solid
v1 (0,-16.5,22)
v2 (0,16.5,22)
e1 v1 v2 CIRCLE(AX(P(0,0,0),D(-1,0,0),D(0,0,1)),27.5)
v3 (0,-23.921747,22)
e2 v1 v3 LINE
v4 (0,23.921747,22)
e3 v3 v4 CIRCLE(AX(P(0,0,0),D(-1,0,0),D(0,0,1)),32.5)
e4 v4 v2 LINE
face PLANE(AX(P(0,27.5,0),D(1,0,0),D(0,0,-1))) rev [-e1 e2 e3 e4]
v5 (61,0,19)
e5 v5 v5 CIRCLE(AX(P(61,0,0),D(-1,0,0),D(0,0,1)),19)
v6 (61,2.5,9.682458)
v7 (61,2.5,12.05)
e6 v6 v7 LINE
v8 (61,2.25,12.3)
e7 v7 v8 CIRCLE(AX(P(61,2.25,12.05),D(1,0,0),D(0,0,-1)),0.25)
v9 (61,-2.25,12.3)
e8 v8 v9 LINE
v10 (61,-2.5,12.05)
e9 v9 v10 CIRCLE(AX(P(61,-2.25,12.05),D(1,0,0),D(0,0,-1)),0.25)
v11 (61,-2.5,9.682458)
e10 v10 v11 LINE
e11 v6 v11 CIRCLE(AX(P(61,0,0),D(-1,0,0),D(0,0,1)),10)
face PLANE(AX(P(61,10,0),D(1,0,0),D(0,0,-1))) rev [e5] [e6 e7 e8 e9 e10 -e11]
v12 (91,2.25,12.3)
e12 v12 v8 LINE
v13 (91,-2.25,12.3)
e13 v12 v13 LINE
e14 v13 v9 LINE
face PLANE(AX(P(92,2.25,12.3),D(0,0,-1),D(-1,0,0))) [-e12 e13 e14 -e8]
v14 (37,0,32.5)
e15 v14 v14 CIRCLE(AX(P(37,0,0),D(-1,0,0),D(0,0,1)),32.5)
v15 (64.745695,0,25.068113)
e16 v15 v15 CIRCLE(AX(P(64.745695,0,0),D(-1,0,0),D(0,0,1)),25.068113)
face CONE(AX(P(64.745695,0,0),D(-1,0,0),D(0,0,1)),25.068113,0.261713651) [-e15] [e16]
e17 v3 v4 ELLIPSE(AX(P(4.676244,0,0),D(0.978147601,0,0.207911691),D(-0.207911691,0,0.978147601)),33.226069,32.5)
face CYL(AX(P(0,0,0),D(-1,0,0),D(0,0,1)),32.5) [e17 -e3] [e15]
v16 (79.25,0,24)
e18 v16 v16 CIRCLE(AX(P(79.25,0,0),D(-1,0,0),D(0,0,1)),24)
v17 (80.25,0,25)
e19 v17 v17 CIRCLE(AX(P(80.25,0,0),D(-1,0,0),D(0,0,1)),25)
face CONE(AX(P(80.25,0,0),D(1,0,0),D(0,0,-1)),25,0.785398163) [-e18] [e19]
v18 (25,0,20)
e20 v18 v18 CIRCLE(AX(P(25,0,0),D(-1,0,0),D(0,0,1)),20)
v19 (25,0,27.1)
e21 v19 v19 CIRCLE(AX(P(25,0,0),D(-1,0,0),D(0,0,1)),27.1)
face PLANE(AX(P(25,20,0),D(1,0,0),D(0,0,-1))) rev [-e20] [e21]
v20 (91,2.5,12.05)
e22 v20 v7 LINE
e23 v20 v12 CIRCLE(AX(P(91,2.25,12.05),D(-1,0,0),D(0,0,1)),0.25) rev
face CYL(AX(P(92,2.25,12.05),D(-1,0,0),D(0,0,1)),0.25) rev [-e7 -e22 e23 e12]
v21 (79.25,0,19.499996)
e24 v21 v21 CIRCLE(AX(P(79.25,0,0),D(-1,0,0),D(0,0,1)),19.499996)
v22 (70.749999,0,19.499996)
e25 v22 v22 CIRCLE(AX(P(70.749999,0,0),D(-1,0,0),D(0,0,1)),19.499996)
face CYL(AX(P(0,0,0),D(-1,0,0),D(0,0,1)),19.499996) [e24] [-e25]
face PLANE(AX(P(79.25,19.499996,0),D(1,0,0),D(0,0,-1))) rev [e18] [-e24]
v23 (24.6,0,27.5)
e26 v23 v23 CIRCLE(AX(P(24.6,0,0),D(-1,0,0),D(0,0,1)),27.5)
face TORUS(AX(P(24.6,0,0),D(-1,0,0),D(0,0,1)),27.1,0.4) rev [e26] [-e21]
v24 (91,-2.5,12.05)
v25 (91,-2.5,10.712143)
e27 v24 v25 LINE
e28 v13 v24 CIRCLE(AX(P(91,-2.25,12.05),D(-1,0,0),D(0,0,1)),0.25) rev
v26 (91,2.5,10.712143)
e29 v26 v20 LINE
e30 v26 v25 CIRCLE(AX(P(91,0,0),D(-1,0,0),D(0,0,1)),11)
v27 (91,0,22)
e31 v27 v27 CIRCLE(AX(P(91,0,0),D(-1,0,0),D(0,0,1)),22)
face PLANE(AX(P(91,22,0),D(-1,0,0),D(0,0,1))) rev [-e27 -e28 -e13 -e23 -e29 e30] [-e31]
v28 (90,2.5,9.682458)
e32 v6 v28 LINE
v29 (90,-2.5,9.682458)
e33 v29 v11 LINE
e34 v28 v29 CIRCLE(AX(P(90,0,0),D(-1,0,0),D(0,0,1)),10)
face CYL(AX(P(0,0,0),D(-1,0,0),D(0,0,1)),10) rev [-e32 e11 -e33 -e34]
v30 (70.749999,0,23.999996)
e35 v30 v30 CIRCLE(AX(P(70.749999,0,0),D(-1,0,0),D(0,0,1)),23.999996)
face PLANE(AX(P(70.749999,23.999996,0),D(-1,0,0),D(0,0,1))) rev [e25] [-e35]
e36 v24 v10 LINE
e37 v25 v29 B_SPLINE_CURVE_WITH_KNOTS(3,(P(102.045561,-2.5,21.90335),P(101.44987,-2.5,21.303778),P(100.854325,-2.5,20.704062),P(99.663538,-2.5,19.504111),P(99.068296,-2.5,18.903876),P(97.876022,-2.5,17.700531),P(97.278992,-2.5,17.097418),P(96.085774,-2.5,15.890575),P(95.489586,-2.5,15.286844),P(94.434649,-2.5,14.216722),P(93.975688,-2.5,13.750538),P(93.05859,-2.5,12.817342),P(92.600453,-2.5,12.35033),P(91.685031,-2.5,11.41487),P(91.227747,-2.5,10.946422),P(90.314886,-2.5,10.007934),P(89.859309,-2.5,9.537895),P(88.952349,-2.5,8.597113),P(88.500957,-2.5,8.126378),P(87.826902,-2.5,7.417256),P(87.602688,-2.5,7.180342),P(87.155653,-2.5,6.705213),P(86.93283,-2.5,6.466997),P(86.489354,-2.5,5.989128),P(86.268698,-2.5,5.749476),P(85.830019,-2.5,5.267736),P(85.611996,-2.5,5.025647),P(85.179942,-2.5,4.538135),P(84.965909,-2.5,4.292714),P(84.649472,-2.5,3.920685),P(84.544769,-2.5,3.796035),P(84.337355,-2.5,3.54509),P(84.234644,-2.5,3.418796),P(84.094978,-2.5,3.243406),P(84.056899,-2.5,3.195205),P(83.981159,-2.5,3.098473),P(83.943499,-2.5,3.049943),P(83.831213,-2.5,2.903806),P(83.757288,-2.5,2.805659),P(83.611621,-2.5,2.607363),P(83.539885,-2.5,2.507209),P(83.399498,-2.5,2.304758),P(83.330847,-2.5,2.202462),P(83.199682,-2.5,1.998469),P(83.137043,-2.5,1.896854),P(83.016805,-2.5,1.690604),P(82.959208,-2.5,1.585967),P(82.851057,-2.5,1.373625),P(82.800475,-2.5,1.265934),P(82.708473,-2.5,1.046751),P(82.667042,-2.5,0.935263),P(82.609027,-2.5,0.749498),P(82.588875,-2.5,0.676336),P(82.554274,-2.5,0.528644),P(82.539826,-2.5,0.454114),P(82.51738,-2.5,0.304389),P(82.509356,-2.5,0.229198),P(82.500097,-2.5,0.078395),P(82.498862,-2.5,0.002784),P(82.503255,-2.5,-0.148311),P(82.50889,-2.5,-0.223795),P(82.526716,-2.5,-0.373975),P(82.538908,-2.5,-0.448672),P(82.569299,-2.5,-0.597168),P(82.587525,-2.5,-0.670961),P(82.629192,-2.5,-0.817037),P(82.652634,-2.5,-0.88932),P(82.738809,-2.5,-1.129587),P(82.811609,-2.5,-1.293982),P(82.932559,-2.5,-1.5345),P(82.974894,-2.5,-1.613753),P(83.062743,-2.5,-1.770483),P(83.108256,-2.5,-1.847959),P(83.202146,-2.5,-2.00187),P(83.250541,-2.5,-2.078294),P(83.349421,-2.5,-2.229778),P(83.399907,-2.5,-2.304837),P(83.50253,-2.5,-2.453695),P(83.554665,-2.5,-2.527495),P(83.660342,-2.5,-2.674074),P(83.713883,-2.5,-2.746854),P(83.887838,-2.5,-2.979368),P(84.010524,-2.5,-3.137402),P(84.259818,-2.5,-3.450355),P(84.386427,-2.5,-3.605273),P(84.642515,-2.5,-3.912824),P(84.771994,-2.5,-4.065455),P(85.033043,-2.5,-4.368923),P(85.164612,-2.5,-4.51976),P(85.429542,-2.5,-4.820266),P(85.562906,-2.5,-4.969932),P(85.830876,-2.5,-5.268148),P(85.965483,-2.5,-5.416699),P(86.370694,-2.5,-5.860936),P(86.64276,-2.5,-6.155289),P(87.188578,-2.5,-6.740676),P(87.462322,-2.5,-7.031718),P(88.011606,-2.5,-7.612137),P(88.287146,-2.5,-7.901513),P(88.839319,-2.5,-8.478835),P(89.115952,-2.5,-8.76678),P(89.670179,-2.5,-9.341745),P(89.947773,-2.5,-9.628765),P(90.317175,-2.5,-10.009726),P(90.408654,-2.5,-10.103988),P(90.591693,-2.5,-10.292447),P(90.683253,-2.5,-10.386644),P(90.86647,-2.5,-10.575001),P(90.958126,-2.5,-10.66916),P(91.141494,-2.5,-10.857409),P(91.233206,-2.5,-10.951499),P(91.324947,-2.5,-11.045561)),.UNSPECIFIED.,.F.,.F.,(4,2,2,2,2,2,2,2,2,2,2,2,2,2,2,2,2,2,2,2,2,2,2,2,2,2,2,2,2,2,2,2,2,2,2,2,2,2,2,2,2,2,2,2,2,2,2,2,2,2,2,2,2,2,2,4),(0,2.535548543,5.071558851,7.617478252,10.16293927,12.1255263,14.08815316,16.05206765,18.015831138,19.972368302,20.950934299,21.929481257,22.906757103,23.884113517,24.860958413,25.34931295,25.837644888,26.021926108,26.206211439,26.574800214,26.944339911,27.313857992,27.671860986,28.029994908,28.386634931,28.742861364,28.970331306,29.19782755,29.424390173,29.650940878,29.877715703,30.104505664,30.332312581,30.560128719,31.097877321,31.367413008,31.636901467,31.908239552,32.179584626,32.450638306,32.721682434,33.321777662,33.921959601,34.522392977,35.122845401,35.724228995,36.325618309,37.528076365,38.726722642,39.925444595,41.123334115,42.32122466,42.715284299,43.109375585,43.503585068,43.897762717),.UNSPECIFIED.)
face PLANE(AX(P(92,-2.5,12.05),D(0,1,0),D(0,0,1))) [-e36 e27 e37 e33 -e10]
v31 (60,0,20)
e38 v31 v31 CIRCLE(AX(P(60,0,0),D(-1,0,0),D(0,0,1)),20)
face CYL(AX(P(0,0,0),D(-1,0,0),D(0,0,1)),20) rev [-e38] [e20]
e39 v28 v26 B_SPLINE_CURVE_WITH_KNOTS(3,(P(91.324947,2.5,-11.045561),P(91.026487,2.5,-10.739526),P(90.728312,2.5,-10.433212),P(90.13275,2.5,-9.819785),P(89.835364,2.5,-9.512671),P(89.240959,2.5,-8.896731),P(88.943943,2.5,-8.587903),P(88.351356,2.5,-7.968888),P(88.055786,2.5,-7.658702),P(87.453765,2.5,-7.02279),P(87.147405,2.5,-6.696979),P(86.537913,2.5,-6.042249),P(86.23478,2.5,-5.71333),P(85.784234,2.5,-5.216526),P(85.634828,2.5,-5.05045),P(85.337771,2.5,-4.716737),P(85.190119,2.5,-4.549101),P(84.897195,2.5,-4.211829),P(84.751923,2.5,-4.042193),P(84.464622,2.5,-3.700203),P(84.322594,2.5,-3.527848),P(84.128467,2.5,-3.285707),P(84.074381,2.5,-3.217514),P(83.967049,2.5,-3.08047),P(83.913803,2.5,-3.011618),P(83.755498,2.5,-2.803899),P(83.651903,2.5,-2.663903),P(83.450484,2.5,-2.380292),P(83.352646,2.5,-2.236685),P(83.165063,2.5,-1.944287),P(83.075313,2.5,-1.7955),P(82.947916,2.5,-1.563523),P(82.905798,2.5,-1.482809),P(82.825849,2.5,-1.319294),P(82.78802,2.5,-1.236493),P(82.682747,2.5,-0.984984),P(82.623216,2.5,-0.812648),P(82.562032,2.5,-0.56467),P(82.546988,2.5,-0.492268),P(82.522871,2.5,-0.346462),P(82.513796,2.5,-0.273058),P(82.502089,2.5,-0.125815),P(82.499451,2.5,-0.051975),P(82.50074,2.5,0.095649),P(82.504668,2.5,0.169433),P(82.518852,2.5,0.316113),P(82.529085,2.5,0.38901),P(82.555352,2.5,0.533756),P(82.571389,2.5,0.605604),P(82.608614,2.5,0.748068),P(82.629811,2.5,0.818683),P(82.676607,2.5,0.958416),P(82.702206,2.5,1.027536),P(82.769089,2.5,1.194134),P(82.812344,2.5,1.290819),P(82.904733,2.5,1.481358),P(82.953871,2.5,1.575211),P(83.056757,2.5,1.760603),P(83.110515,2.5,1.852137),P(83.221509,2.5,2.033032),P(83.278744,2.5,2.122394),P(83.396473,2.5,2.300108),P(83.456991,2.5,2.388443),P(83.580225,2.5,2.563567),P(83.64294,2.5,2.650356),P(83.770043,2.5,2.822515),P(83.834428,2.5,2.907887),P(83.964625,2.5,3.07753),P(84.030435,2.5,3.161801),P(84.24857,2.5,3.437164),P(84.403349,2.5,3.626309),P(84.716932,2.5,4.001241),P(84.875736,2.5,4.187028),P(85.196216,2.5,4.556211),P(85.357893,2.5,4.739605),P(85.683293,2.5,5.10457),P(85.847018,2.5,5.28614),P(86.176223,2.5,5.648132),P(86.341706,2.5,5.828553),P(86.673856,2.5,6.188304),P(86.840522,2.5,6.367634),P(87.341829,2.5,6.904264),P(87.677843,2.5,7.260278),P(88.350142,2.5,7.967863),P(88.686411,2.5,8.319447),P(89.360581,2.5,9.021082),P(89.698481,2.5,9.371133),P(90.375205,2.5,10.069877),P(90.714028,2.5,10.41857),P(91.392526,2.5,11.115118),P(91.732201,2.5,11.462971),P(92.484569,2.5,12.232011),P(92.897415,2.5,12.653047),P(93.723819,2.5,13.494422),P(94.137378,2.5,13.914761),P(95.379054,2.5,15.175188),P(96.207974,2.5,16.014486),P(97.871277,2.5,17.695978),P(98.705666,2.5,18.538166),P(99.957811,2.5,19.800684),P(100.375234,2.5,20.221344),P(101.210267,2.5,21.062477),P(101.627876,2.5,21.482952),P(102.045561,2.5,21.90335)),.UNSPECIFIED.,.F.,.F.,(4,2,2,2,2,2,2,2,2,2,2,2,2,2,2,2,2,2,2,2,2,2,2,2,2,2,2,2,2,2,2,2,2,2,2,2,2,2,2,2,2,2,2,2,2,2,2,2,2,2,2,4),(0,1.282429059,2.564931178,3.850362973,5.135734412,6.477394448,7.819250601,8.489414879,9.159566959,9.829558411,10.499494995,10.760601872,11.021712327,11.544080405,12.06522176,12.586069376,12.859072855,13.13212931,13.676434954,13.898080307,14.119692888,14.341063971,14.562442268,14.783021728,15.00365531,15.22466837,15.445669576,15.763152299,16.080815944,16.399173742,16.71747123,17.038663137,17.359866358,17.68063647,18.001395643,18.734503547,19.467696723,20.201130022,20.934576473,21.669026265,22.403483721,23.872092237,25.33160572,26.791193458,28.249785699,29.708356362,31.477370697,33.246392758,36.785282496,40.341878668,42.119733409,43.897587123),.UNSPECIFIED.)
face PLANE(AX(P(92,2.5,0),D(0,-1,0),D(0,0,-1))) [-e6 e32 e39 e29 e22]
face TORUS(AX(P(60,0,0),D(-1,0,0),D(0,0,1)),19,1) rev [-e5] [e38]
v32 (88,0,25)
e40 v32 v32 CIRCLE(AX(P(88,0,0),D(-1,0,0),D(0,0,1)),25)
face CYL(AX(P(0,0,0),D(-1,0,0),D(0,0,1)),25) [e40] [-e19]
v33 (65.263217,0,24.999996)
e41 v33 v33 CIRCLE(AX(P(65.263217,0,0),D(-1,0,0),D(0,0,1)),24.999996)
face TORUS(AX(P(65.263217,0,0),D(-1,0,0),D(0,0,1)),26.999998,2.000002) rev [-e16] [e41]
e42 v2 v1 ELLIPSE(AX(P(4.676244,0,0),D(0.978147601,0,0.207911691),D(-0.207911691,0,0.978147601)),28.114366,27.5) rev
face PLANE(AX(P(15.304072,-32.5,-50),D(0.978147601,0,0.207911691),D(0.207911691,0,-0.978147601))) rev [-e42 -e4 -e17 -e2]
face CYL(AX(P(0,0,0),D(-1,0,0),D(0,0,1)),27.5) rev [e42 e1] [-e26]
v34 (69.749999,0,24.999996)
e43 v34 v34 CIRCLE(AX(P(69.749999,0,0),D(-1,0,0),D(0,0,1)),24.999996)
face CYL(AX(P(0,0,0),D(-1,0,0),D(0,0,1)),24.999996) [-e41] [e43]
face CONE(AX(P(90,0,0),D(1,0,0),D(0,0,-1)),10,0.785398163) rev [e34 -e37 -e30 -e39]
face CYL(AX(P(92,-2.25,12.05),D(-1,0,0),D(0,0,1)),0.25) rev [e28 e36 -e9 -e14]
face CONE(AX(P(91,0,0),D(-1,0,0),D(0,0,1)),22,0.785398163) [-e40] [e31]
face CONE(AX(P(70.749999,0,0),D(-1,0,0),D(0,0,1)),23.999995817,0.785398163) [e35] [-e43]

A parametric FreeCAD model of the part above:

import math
import FreeCAD as App
import Part
import Sketcher
Q = App.Units.Quantity


def add_polygon(sketch, points):
    """Adds a closed chain of lines whose ends are joined by coincident constraints."""
    first, n = sketch.GeometryCount, len(points)
    for a, b in zip(points, points[1:] + points[:1]):
        sketch.addGeometry(Part.LineSegment(App.Vector(*a, 0), App.Vector(*b, 0)), False)
    for i in range(n):
        sketch.addConstraint(Sketcher.Constraint("Coincident", first + i, 2, first + (i + 1) % n, 1))

doc = App.newDocument("Part")
body = doc.addObject("PartDesign::Body", "Body")

# Sketch on XY plane
sketch1 = body.newObject("Sketcher::SketchObject", "Sketch")
sketch1.AttachmentSupport = (doc.getObject("XY_Plane"), [""])
sketch1.MapMode = "FlatFace"
sketch1.addGeometry([
    Part.LineSegment(App.Vector(37, 32.5, 0), App.Vector(0, 32.5, 0)),  # 0
    Part.LineSegment(App.Vector(0, 32.5, 0), App.Vector(0, 27.5, 0)),  # 1
    Part.LineSegment(App.Vector(0, 27.5, 0), App.Vector(24.6, 27.5, 0)),  # 2
    Part.ArcOfCircle(Part.Circle(App.Vector(24.6, 27.1, 0), App.Vector(0, 0, 1), 0.4), math.radians(0), math.radians(90)),  # 3
    Part.LineSegment(App.Vector(25, 27.1, 0), App.Vector(25, 20, 0)),  # 4
    Part.LineSegment(App.Vector(25, 20, 0), App.Vector(60, 20, 0)),  # 5
    Part.ArcOfCircle(Part.Circle(App.Vector(60, 19, 0), App.Vector(0, 0, 1), 1), math.radians(0), math.radians(90)),  # 6
    Part.LineSegment(App.Vector(61, 19, 0), App.Vector(61, 10, 0)),  # 7
    Part.LineSegment(App.Vector(61, 10, 0), App.Vector(90, 10, 0)),  # 8
    Part.LineSegment(App.Vector(90, 10, 0), App.Vector(91, 11, 0)),  # 9
    Part.LineSegment(App.Vector(91, 11, 0), App.Vector(91, 22, 0)),  # 10
    Part.LineSegment(App.Vector(91, 22, 0), App.Vector(88, 25, 0)),  # 11
    Part.LineSegment(App.Vector(88, 25, 0), App.Vector(80.25, 25, 0)),  # 12
    Part.LineSegment(App.Vector(80.25, 25, 0), App.Vector(79.25, 24, 0)),  # 13
    Part.LineSegment(App.Vector(79.25, 24, 0), App.Vector(79.25, 19.5, 0)),  # 14
    Part.LineSegment(App.Vector(79.25, 19.5, 0), App.Vector(70.75, 19.5, 0)),  # 15
    Part.LineSegment(App.Vector(70.75, 19.5, 0), App.Vector(70.75, 24, 0)),  # 16
    Part.LineSegment(App.Vector(70.75, 24, 0), App.Vector(69.75, 25, 0)),  # 17
    Part.LineSegment(App.Vector(69.75, 25, 0), App.Vector(65.26, 25, 0)),  # 18
    Part.ArcOfCircle(Part.Circle(App.Vector(65.26, 27, 0), App.Vector(0, 0, 1), 2), math.radians(-105), math.radians(-90)),  # 19
    Part.LineSegment(App.Vector(64.75, 25.07, 0), App.Vector(37, 32.5, 0)),  # 20
], False)
sketch1.addConstraint([
    Sketcher.Constraint("Coincident", 0, 2, 1, 1),
    Sketcher.Constraint("Coincident", 1, 2, 2, 1),
    Sketcher.Constraint("Tangent", 2, 2, 3, 2),
    Sketcher.Constraint("Tangent", 3, 1, 4, 1),
    Sketcher.Constraint("Coincident", 4, 2, 5, 1),
    Sketcher.Constraint("Tangent", 5, 2, 6, 2),
    Sketcher.Constraint("Tangent", 6, 1, 7, 1),
    Sketcher.Constraint("Coincident", 7, 2, 8, 1),
    Sketcher.Constraint("Coincident", 8, 2, 9, 1),
    Sketcher.Constraint("Coincident", 9, 2, 10, 1),
    Sketcher.Constraint("Coincident", 10, 2, 11, 1),
    Sketcher.Constraint("Coincident", 11, 2, 12, 1),
    Sketcher.Constraint("Coincident", 12, 2, 13, 1),
    Sketcher.Constraint("Coincident", 13, 2, 14, 1),
    Sketcher.Constraint("Coincident", 14, 2, 15, 1),
    Sketcher.Constraint("Coincident", 15, 2, 16, 1),
    Sketcher.Constraint("Coincident", 16, 2, 17, 1),
    Sketcher.Constraint("Coincident", 17, 2, 18, 1),
    Sketcher.Constraint("Tangent", 18, 2, 19, 2),
    Sketcher.Constraint("Coincident", 19, 1, 20, 1),
    Sketcher.Constraint("Coincident", 20, 2, 0, 1),
    Sketcher.Constraint("Horizontal", 0),
    Sketcher.Constraint("Vertical", 1),
    Sketcher.Constraint("Horizontal", 2),
    Sketcher.Constraint("Vertical", 4),
    Sketcher.Constraint("Horizontal", 5),
    Sketcher.Constraint("Vertical", 7),
    Sketcher.Constraint("Horizontal", 8),
    Sketcher.Constraint("Vertical", 10),
    Sketcher.Constraint("Horizontal", 12),
    Sketcher.Constraint("Vertical", 14),
    Sketcher.Constraint("Horizontal", 15),
    Sketcher.Constraint("Vertical", 16),
    Sketcher.Constraint("Horizontal", 18),
    Sketcher.Constraint("PointOnObject", 0, 2, -2),
    Sketcher.Constraint("Perpendicular", 9, 11),
    Sketcher.Constraint("Perpendicular", 11, 13),
    Sketcher.Constraint("Perpendicular", 13, 17),
    Sketcher.Constraint("Equal", 9, 13),
    Sketcher.Constraint("Equal", 13, 17),
    Sketcher.Constraint("Radius", 6, 1.0),
    Sketcher.Constraint("Radius", 3, 0.4),
    Sketcher.Constraint("DistanceX", 0, 2, 0, 1, 37.0),
    Sketcher.Constraint("DistanceX", 5, 1, 5, 2, 35.0),
    Sketcher.Constraint("DistanceX", 8, 1, 8, 2, 29.0),
    Sketcher.Constraint("DistanceY", 1, 2, 1, 1, 5.0),
    Sketcher.Constraint("DistanceY", 7, 2, 7, 1, 9.0),
    Sketcher.Constraint("DistanceY", 10, 1, 10, 2, 11.0),
    Sketcher.Constraint("Angle", 9, Q("45 deg")),
    Sketcher.Constraint("DistanceX", 2, 1, 2, 2, 24.6),
    Sketcher.Constraint("DistanceX", 15, 2, 15, 1, 8.500001),
    Sketcher.Constraint("DistanceY", 4, 2, 4, 1, 7.1),
    Sketcher.Constraint("DistanceY", 16, 1, 16, 2, 4.5),
    Sketcher.Constraint("DistanceY", -1, 1, 6, 3, 19.0),
    Sketcher.Constraint("DistanceX", -1, 1, 9, 2, 91.0),
    Sketcher.Constraint("DistanceX", -1, 1, 11, 2, 88.0),
    Sketcher.Constraint("DistanceX", 12, 2, 12, 1, 7.75),
    Sketcher.Constraint("Radius", 19, 2.000002),
    Sketcher.Constraint("DistanceX", 18, 2, 18, 1, 4.486782),
    Sketcher.Constraint("DistanceY", 14, 2, 14, 1, 4.500004),
    Sketcher.Constraint("Distance", 20, 28.723797),
])
revolution = body.newObject("PartDesign::Revolution", "Revolution")
revolution.Profile = sketch1
revolution.ReferenceAxis = (sketch1, ["H_Axis"])
revolution.Angle = 360

# Sketch on XZ plane
sketch2 = body.newObject("Sketcher::SketchObject", "Sketch001")
sketch2.AttachmentSupport = (doc.getObject("XZ_Plane"), [""])
sketch2.MapMode = "FlatFace"
add_polygon(sketch2, [(15, -50), (-25, -50), (-25, 50), (-6, 50)])  # lines 0-3
sketch2.addConstraint([
    Sketcher.Constraint("Horizontal", 0),
    Sketcher.Constraint("Vertical", 1),
    Sketcher.Constraint("Horizontal", 2),
    Sketcher.Constraint("DistanceY", 1, 1, 1, 2, 100.0),
    Sketcher.Constraint("Angle", 3, Q("-78 deg")),
    Sketcher.Constraint("DistanceX", 0, 2, -1, 1, 25.0),
    Sketcher.Constraint("DistanceY", 0, 2, -1, 1, 50.0),
    Sketcher.Constraint("DistanceX", 0, 2, 0, 1, 40.304072),
])
pocket1 = body.newObject("PartDesign::Pocket", "Pocket")
pocket1.Profile = sketch2
pocket1.Type = "ThroughAll"
pocket1.Midplane = True

# Sketch on YZ plane
sketch3 = body.newObject("Sketcher::SketchObject", "Sketch002")
sketch3.AttachmentSupport = (doc.getObject("YZ_Plane"), [""])
sketch3.MapMode = "FlatFace"
sketch3.AttachmentOffset = App.Placement(App.Vector(0, 0, 61), App.Rotation())
sketch3.addGeometry([
    Part.LineSegment(App.Vector(-2.5, 0, 0), App.Vector(2.5, 0, 0)),  # 0
    Part.LineSegment(App.Vector(2.5, 0, 0), App.Vector(2.5, 12.05, 0)),  # 1
    Part.ArcOfCircle(Part.Circle(App.Vector(2.25, 12.05, 0), App.Vector(0, 0, 1), 0.25), math.radians(0), math.radians(90)),  # 2
    Part.LineSegment(App.Vector(2.25, 12.3, 0), App.Vector(-2.25, 12.3, 0)),  # 3
    Part.ArcOfCircle(Part.Circle(App.Vector(-2.25, 12.05, 0), App.Vector(0, 0, 1), 0.25), math.radians(90), math.radians(180)),  # 4
    Part.LineSegment(App.Vector(-2.5, 12.05, 0), App.Vector(-2.5, 0, 0)),  # 5
], False)
sketch3.addConstraint([
    Sketcher.Constraint("Coincident", 0, 2, 1, 1),
    Sketcher.Constraint("Tangent", 1, 2, 2, 1),
    Sketcher.Constraint("Tangent", 2, 2, 3, 1),
    Sketcher.Constraint("Tangent", 3, 2, 4, 1),
    Sketcher.Constraint("Tangent", 4, 2, 5, 1),
    Sketcher.Constraint("Coincident", 5, 2, 0, 1),
    Sketcher.Constraint("Horizontal", 0),
    Sketcher.Constraint("Vertical", 1),
    Sketcher.Constraint("Horizontal", 3),
    Sketcher.Constraint("Vertical", 5),
    Sketcher.Constraint("Equal", 2, 4),
    Sketcher.Constraint("Symmetric", 0, 2, 5, 2, -1, 1),
    Sketcher.Constraint("DistanceX", 0, 1, 0, 2, 5.0),
    Sketcher.Constraint("Radius", 2, 0.25),
    Sketcher.Constraint("DistanceY", 1, 1, 1, 2, 12.05),
])
pocket2 = body.newObject("PartDesign::Pocket", "Pocket001")
pocket2.Profile = sketch3
pocket2.Length = 31
pocket2.Reversed = True

doc.recompute()
